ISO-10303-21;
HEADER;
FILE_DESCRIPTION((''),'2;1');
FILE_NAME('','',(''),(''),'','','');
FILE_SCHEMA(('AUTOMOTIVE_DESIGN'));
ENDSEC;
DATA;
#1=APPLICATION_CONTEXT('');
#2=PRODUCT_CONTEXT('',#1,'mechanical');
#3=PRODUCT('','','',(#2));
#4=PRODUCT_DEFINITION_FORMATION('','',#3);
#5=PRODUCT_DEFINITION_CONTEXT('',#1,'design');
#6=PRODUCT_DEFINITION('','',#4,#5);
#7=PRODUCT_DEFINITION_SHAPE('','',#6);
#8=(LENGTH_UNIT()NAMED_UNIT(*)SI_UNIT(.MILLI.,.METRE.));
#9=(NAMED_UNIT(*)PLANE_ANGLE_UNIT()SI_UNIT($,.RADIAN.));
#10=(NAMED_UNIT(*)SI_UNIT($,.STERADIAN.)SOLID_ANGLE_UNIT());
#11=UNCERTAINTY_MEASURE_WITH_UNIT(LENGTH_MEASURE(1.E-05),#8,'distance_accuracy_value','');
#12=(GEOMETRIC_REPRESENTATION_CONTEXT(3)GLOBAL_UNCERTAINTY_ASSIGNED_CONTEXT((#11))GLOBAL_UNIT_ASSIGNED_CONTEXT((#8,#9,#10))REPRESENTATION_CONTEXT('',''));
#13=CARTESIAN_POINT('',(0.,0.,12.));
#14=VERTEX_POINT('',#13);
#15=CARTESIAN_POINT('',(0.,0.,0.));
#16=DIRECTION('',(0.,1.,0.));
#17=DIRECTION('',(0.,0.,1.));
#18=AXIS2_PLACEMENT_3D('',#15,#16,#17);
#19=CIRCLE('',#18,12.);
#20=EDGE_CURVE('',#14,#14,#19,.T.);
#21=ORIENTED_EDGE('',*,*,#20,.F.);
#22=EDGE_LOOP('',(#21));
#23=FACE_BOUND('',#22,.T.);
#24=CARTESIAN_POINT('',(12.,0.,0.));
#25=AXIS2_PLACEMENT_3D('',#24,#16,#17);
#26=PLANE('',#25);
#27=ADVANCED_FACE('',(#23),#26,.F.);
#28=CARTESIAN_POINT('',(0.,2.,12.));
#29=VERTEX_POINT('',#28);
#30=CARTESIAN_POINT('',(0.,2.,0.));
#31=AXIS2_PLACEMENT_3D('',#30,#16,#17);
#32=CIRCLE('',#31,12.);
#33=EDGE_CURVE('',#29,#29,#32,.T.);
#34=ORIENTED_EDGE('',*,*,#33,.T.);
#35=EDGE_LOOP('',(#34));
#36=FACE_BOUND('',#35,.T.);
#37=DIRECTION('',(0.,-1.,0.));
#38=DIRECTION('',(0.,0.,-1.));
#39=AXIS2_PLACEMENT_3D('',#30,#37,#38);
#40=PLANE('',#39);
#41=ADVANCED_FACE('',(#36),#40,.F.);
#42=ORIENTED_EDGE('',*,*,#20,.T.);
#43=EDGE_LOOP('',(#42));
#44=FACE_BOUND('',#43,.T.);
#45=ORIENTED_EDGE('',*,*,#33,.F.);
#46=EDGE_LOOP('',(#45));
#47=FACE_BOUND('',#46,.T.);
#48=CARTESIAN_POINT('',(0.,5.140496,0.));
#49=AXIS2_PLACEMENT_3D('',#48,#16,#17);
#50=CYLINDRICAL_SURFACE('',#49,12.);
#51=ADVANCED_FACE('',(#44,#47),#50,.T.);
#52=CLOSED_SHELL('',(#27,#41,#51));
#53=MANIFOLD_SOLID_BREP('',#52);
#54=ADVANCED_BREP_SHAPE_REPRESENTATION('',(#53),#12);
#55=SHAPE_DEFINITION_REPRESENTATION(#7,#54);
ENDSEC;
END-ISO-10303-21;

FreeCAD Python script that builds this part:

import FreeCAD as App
import Part
import Sketcher

V = App.Vector
Q = App.Units.Quantity


def add_polygon(sketch, points):
    """Adds a closed chain of lines whose ends are joined by coincident constraints."""
    first, n = sketch.GeometryCount, len(points)
    for a, b in zip(points, points[1:] + points[:1]):
        sketch.addGeometry(Part.LineSegment(App.Vector(*a, 0), App.Vector(*b, 0)), False)
    for i in range(n):
        sketch.addConstraint(Sketcher.Constraint("Coincident", first + i, 2, first + (i + 1) % n, 1))

doc = App.newDocument("Part")
body = doc.addObject("PartDesign::Body", "Body")

# Sketch on XY plane
sketch1 = doc.addObject("Sketcher::SketchObject", "Sketch")
body.addObject(sketch1)
sketch1.AttachmentSupport = (doc.XY_Plane, [""])
sketch1.MapMode = "FlatFace"
add_polygon(sketch1, [(0, 2), (0, 0), (12, 0), (12, 2)])  # lines 0-3
sketch1.addConstraint([
    Sketcher.Constraint("Vertical", 0),
    Sketcher.Constraint("Horizontal", 1),
    Sketcher.Constraint("Vertical", 2),
    Sketcher.Constraint("Horizontal", 3),
    Sketcher.Constraint("Coincident", 0, 2, -1, 1),
    Sketcher.Constraint("DistanceX", 1, 1, 1, 2, Q("12 mm")),
    Sketcher.Constraint("DistanceY", 0, 2, 0, 1, Q("2 mm")),
])
revolution = doc.addObject("PartDesign::Revolution", "Revolution")
body.addObject(revolution)
revolution.Profile = sketch1
revolution.ReferenceAxis = (sketch1, ["V_Axis"])
revolution.Angle = 360

doc.recompute()
